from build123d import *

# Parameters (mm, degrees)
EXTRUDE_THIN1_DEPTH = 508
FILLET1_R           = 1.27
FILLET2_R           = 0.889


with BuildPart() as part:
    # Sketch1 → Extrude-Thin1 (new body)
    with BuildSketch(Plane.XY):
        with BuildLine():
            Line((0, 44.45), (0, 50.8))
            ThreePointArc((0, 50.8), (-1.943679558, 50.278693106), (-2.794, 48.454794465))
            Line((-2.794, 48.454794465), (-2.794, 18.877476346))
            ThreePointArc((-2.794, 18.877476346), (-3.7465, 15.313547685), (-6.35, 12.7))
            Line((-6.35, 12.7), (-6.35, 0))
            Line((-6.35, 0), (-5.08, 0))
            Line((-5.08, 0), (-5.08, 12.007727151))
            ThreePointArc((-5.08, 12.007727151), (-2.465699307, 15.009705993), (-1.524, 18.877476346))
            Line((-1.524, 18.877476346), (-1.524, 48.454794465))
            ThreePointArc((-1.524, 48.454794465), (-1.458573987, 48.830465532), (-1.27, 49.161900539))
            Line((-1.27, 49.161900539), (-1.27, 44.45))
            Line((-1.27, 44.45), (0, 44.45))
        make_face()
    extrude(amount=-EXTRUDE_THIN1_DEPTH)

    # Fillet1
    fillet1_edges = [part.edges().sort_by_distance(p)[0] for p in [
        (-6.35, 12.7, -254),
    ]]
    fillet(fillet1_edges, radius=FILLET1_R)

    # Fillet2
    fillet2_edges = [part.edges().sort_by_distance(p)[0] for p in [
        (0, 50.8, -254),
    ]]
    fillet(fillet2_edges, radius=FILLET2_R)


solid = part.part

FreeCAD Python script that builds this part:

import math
import FreeCAD as App
import Part
import Sketcher
from FreeCAD import Vector
Q = App.Units.Quantity


def edges_at(feature, points):
    """Names of the edges that pass closest to the given points."""
    edges = feature.Shape.Edges
    near = lambda p: min(range(len(edges)), key=lambda i: edges[i].distToShape(Part.Vertex(*p))[0])
    return sorted({f"Edge{near(p) + 1}" for p in points})

doc = App.newDocument("Part")
body = doc.addObject("PartDesign::Body", "Body")

# Sketch on XY plane
sketch1 = body.newObject("Sketcher::SketchObject", "Sketch")
sketch1.AttachmentSupport = (doc.getObject("XY_Plane"), [""])
sketch1.MapMode = "FlatFace"
sketch1.addGeometry([
    Part.LineSegment(Vector(0, 44.5, 0), Vector(0, 50.8, 0)),  # 0
    Part.ArcOfCircle(Part.Circle(Vector(-0.4, 48.5, 0), Vector(0, 0, 1), 2.4), math.radians(80), math.radians(180)),  # 1
    Part.LineSegment(Vector(-2.8, 48.5, 0), Vector(-2.8, 18.9, 0)),  # 2
    Part.ArcOfCircle(Part.Circle(Vector(-9.9, 18.9, 0), Vector(0, 0, 1), 7.1), math.radians(-60), math.radians(0)),  # 3
    Part.LineSegment(Vector(-6.3, 12.7, 0), Vector(-6.3, 0, 0)),  # 4
    Part.LineSegment(Vector(-6.3, 0, 0), Vector(-5.1, 0, 0)),  # 5
    Part.LineSegment(Vector(-5.1, 0, 0), Vector(-5.1, 12, 0)),  # 6
    Part.ArcOfCircle(Part.Circle(Vector(-9.9, 18.9, 0), Vector(0, 0, 1), 8.4), math.radians(-55), math.radians(0)),  # 7
    Part.LineSegment(Vector(-1.5, 18.9, 0), Vector(-1.5, 48.5, 0)),  # 8
    Part.ArcOfCircle(Part.Circle(Vector(-0.4, 48.5, 0), Vector(0, 0, 1), 1.1), math.radians(140), math.radians(180)),  # 9
    Part.LineSegment(Vector(-1.3, 49.2, 0), Vector(-1.3, 44.5, 0)),  # 10
    Part.LineSegment(Vector(-1.3, 44.5, 0), Vector(0, 44.5, 0)),  # 11
], False)
sketch1.addConstraint([
    Sketcher.Constraint("Coincident", 0, 2, 1, 1),
    Sketcher.Constraint("Tangent", 1, 2, 2, 1),
    Sketcher.Constraint("Tangent", 2, 2, 3, 2),
    Sketcher.Constraint("Coincident", 3, 1, 4, 1),
    Sketcher.Constraint("Coincident", 4, 2, 5, 1),
    Sketcher.Constraint("Coincident", 5, 2, 6, 1),
    Sketcher.Constraint("Coincident", 6, 2, 7, 1),
    Sketcher.Constraint("Tangent", 7, 2, 8, 1),
    Sketcher.Constraint("Tangent", 8, 2, 9, 2),
    Sketcher.Constraint("Coincident", 9, 1, 10, 1),
    Sketcher.Constraint("Coincident", 10, 2, 11, 1),
    Sketcher.Constraint("Coincident", 11, 2, 0, 1),
    Sketcher.Constraint("Vertical", 0),
    Sketcher.Constraint("Vertical", 2),
    Sketcher.Constraint("Vertical", 4),
    Sketcher.Constraint("Horizontal", 5),
    Sketcher.Constraint("Vertical", 6),
    Sketcher.Constraint("Vertical", 8),
    Sketcher.Constraint("Vertical", 10),
    Sketcher.Constraint("Horizontal", 11),
    Sketcher.Constraint("Coincident", 7, 3, 3, 3),
    Sketcher.Constraint("Coincident", 9, 3, 1, 3),
    Sketcher.Constraint("PointOnObject", 0, 2, -2),
    Sketcher.Constraint("PointOnObject", 4, 2, -1),
    Sketcher.Constraint("Equal", 5, 11),
    Sketcher.Constraint("DistanceY", 4, 2, 4, 1, Q("0.5 in")),
    Sketcher.Constraint("DistanceY", -1, 1, 0, 2, Q("2 in")),
    Sketcher.Constraint("Radius", 1, Q("0.09375 in")),
    Sketcher.Constraint("Radius", 3, Q("0.28125 in")),
    Sketcher.Constraint("DistanceX", 5, 1, 5, 2, Q("0.05 in")),
    Sketcher.Constraint("DistanceY", 0, 1, 0, 2, Q("0.25 in")),
    Sketcher.Constraint("DistanceX", 5, 2, -1, 1, Q("0.2 in")),
    Sketcher.Constraint("DistanceX", 1, 2, -1, 1, Q("0.11 in")),
    Sketcher.Constraint("DistanceX", 7, 2, -1, 1, Q("0.06 in")),
])
pad1 = body.newObject("PartDesign::Pad", "Pad")
pad1.Profile = sketch1
pad1.Length = Q("20 in")
pad1.Reversed = True
doc.recompute()

fillet = body.newObject("PartDesign::Fillet", "Fillet")
fillet.Base = (pad1, edges_at(pad1, [(-6.35, 12.7, -254)]))
fillet.Radius = Q("0.05 in")
doc.recompute()

fillet2 = body.newObject("PartDesign::Fillet", "Fillet001")
fillet2.Base = (fillet, edges_at(fillet, [(0, 50.8, -254)]))
fillet2.Radius = Q("0.035 in")

doc.recompute()
